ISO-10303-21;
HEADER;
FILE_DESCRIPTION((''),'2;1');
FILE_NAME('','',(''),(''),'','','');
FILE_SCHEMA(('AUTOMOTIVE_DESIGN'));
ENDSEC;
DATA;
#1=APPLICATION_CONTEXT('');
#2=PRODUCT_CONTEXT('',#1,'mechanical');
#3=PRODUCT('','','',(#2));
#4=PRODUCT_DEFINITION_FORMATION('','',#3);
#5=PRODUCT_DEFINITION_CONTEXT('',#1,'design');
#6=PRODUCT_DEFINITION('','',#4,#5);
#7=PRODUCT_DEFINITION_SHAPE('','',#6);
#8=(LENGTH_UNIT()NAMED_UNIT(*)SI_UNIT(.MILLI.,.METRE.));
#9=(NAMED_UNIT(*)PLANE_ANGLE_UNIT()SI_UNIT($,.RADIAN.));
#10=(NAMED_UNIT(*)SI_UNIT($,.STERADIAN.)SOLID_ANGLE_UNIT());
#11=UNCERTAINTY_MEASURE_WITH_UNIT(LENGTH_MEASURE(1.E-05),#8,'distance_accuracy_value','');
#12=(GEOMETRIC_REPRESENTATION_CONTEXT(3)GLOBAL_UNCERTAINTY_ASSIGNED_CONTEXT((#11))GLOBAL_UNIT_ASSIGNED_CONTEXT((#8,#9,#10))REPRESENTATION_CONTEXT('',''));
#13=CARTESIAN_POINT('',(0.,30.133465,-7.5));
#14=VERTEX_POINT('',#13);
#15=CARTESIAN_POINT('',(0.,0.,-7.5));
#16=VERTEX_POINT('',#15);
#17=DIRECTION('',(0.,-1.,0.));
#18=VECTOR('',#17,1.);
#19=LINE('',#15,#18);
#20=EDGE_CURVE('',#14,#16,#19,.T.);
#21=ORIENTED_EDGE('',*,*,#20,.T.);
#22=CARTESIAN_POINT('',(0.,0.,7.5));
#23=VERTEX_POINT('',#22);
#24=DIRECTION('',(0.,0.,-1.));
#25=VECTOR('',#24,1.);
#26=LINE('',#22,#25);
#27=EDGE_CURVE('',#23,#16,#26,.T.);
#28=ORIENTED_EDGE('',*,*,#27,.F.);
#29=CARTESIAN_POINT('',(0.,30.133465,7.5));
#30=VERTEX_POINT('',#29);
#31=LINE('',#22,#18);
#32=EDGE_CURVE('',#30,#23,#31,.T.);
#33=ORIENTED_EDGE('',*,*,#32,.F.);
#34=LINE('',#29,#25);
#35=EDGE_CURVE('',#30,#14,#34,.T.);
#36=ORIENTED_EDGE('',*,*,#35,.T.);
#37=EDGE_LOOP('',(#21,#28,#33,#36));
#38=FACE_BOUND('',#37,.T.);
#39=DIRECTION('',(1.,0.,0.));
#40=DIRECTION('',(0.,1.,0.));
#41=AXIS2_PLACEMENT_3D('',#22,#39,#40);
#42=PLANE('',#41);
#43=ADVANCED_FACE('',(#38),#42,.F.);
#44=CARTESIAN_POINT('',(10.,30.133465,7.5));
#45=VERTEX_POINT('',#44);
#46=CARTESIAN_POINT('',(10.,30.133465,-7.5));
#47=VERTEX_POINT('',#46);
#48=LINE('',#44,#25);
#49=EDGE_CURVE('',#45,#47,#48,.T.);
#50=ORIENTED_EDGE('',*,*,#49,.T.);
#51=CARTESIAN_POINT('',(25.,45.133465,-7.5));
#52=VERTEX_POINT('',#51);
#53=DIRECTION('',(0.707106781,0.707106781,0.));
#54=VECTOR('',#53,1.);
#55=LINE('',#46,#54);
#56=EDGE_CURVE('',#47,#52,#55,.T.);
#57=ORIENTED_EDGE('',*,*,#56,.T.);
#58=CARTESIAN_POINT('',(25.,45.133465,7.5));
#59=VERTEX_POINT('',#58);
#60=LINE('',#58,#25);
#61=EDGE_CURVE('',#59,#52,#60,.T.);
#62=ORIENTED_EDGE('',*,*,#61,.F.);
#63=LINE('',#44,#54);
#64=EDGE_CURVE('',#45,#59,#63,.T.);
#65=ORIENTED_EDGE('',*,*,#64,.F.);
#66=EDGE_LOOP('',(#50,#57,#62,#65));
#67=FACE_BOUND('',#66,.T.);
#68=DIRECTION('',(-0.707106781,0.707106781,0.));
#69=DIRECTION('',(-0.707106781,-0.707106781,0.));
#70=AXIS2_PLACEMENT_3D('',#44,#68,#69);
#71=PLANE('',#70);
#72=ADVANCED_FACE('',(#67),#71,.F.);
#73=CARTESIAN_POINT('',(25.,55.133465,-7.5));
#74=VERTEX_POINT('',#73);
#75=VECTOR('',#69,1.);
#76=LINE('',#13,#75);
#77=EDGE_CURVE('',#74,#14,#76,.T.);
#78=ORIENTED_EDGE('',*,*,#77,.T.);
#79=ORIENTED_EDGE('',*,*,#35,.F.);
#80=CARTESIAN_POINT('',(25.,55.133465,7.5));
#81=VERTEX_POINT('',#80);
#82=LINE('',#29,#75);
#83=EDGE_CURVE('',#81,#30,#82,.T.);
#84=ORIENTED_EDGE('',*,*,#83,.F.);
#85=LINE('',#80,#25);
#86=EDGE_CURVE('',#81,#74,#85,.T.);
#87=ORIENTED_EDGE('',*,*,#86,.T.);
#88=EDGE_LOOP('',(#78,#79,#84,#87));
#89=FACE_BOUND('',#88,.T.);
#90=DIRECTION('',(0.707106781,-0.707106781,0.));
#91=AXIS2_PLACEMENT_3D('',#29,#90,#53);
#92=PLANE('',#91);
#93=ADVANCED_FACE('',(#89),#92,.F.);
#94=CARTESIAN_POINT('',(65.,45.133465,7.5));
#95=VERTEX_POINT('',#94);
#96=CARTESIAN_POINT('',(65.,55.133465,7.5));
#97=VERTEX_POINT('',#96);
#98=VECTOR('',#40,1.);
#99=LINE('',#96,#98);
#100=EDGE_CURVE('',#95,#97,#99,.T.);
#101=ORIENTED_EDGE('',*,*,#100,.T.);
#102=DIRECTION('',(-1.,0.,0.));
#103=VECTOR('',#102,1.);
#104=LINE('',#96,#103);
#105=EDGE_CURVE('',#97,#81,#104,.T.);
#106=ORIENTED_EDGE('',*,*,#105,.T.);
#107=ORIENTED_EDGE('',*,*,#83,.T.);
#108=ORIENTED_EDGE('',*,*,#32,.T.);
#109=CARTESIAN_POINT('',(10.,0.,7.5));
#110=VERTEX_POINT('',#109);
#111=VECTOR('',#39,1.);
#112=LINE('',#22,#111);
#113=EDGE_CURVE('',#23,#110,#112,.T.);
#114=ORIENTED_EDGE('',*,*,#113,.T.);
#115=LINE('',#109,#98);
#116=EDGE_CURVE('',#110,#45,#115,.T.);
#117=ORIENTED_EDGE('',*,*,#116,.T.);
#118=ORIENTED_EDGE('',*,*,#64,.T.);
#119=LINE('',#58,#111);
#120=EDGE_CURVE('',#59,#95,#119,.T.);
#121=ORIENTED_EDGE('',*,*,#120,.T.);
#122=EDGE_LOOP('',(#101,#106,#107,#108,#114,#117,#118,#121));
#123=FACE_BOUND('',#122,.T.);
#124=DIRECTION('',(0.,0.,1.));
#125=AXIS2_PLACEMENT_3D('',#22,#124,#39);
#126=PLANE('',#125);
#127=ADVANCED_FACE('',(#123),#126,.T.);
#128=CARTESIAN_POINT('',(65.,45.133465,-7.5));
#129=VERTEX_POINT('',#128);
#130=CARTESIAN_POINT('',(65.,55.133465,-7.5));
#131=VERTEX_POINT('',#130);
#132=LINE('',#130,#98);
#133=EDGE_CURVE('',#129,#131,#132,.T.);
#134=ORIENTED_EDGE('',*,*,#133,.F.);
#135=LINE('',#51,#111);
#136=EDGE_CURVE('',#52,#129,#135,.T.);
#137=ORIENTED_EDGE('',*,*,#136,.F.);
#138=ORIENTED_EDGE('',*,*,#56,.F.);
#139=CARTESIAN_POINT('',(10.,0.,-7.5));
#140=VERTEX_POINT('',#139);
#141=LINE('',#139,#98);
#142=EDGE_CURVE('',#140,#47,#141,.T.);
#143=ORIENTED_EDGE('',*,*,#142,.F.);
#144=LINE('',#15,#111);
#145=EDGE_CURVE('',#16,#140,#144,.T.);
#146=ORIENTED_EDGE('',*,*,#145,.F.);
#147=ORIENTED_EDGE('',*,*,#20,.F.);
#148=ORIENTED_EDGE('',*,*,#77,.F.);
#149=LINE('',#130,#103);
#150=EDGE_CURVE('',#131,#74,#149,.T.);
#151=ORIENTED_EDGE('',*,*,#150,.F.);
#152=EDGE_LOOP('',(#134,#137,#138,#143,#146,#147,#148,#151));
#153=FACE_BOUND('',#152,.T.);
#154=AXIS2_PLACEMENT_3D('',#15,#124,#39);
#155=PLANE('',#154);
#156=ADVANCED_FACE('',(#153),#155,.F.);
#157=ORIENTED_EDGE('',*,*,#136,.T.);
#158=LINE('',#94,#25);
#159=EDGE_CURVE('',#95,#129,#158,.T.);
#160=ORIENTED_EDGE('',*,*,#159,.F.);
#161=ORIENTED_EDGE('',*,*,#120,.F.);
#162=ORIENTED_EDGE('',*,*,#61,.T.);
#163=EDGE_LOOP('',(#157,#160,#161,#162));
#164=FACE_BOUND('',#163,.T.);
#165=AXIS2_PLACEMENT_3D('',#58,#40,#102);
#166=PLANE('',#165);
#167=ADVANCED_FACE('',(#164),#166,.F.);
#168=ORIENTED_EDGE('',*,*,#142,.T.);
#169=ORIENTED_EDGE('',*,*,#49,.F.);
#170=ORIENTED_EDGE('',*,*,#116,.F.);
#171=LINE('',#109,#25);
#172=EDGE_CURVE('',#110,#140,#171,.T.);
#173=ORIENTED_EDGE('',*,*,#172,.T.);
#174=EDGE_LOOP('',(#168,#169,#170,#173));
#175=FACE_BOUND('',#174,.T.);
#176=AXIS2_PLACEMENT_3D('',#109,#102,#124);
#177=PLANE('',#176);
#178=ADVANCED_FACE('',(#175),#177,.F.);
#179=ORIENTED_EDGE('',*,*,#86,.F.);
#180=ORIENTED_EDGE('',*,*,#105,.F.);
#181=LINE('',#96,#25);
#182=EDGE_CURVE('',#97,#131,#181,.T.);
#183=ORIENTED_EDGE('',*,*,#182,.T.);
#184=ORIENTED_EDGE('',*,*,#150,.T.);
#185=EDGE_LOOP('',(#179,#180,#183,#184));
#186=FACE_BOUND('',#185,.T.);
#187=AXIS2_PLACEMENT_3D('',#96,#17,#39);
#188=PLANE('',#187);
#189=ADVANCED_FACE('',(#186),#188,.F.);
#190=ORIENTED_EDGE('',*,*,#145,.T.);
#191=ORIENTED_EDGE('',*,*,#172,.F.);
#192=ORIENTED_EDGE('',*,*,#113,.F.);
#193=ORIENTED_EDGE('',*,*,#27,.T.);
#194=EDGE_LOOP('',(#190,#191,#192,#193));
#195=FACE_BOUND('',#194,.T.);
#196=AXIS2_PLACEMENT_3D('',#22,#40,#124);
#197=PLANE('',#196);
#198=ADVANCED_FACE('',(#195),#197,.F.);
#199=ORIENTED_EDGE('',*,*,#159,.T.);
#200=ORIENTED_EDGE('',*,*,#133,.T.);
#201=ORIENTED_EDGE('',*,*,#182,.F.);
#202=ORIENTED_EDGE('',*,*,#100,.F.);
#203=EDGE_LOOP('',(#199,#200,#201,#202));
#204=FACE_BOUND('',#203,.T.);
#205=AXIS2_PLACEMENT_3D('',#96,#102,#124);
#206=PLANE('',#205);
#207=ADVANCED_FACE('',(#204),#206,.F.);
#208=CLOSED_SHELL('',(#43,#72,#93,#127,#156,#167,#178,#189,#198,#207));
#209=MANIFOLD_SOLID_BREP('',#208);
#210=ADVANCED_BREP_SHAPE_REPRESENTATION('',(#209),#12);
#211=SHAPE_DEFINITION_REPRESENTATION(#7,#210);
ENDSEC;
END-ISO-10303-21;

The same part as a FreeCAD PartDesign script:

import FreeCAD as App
import Part
import Sketcher

V = App.Vector
Q = App.Units.Quantity


def add_polygon(sketch, points):
    """Adds a closed chain of lines whose ends are joined by coincident constraints."""
    first, n = sketch.GeometryCount, len(points)
    for a, b in zip(points, points[1:] + points[:1]):
        sketch.addGeometry(Part.LineSegment(App.Vector(*a, 0), App.Vector(*b, 0)), False)
    for i in range(n):
        sketch.addConstraint(Sketcher.Constraint("Coincident", first + i, 2, first + (i + 1) % n, 1))

doc = App.newDocument("Part")
body = doc.addObject("PartDesign::Body", "Body")

# Sketch on XY plane
sketch1 = body.newObject("Sketcher::SketchObject", "Sketch")
sketch1.AttachmentSupport = (doc.getObject("XY_Plane"), [""])
sketch1.MapMode = "FlatFace"
add_polygon(sketch1, [(0, 0), (10, 0), (10, 30.133465), (25, 45.133465), (65, 45.133465), (65, 55.133465), (25, 55.133465), (0, 30.133465)])  # lines 0-7
sketch1.addConstraint([
    Sketcher.Constraint("Horizontal", 0),
    Sketcher.Constraint("Vertical", 1),
    Sketcher.Constraint("Horizontal", 3),
    Sketcher.Constraint("Vertical", 4),
    Sketcher.Constraint("Horizontal", 5),
    Sketcher.Constraint("Vertical", 7),
    Sketcher.Constraint("Coincident", 7, 2, -1, 1),
    Sketcher.Constraint("Parallel", 2, 6),
    Sketcher.Constraint("Horizontal", 1, 2, 6, 2),
    Sketcher.Constraint("Vertical", 2, 2, 5, 2),
    Sketcher.Constraint("Equal", 0, 4),
    Sketcher.Constraint("DistanceX", 0, 1, 0, 2, Q("10 mm")),
    Sketcher.Constraint("DistanceX", 3, 1, 3, 2, Q("40 mm")),
    Sketcher.Constraint("DistanceX", -1, 1, 2, 2, Q("25 mm")),
    Sketcher.Constraint("DistanceY", 1, 1, 1, 2, Q("30.133465 mm")),
])
pad1 = body.newObject("PartDesign::Pad", "Pad")
pad1.Profile = sketch1
pad1.Length = 15
pad1.Midplane = True

doc.recompute()
